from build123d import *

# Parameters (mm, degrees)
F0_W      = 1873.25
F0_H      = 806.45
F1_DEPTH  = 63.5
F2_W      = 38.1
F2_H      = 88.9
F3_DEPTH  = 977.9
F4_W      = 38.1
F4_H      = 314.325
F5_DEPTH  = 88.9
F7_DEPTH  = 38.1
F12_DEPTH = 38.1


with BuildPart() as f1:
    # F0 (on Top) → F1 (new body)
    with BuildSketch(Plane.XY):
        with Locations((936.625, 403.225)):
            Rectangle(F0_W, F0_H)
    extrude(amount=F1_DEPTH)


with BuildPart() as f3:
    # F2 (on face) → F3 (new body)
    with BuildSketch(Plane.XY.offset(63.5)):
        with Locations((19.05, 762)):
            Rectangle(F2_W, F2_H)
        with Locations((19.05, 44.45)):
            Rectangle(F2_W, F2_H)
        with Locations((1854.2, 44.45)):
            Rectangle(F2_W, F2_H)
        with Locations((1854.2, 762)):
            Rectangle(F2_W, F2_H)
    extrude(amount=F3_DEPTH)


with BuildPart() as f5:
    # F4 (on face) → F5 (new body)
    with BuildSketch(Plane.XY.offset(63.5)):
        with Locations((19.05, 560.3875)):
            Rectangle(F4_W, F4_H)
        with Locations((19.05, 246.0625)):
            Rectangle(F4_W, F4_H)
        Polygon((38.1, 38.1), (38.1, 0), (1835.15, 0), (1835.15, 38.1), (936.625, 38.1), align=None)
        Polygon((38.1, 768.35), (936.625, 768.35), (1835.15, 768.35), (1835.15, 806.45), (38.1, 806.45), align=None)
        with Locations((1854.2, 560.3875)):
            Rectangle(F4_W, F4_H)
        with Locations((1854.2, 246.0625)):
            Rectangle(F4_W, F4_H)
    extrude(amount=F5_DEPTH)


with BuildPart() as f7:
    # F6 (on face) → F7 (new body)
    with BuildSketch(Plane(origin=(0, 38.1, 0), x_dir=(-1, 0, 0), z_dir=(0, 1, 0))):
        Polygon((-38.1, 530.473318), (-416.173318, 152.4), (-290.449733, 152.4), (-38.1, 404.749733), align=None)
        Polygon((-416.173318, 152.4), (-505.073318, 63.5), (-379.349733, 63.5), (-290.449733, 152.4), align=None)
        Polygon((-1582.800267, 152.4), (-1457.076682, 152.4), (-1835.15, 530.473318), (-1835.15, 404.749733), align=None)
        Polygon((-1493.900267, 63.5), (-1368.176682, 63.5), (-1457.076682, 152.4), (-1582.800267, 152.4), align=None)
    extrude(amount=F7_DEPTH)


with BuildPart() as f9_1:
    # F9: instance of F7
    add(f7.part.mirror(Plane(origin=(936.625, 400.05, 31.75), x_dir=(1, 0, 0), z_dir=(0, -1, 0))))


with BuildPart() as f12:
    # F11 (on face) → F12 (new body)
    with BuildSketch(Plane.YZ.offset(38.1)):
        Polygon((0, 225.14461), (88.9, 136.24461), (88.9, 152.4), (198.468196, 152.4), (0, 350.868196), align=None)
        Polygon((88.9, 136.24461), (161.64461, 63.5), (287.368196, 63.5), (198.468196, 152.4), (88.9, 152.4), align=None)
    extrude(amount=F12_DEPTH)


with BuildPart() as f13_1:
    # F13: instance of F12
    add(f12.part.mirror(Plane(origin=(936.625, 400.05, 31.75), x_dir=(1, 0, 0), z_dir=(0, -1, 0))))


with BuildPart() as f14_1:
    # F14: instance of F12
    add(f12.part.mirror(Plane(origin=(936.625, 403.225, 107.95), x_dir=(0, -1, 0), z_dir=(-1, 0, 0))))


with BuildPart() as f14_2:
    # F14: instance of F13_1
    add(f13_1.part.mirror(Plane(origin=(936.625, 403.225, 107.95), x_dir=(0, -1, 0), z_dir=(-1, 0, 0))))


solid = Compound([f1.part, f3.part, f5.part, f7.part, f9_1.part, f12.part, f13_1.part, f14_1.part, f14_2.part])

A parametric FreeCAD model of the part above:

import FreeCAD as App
import Part
import Sketcher
Q = App.Units.Quantity

doc = App.newDocument("Part")
body = doc.addObject("PartDesign::Body", "Body")

# Sketch on XY plane
sketch1 = doc.addObject("Sketcher::SketchObject", "Sketch")
body.addObject(sketch1)
sketch1.AttachmentSupport = (doc.XY_Plane, [""])
sketch1.MapMode = "FlatFace"
sketch1.addGeometry(Part.LineSegment(App.Vector(0, 806, 0), App.Vector(0, 0, 0)), False)
sketch1.addGeometry(Part.LineSegment(App.Vector(0, 0, 0), App.Vector(1873, 0, 0)), False)
sketch1.addGeometry(Part.LineSegment(App.Vector(1873, 0, 0), App.Vector(1873, 806, 0)), False)
sketch1.addGeometry(Part.LineSegment(App.Vector(1873, 806, 0), App.Vector(0, 806, 0)), False)
sketch1.addConstraint(Sketcher.Constraint("Coincident", 0, 2, 1, 1))
sketch1.addConstraint(Sketcher.Constraint("Coincident", 1, 2, 2, 1))
sketch1.addConstraint(Sketcher.Constraint("Coincident", 2, 2, 3, 1))
sketch1.addConstraint(Sketcher.Constraint("Coincident", 3, 2, 0, 1))
sketch1.addConstraint(Sketcher.Constraint("Vertical", 0))
sketch1.addConstraint(Sketcher.Constraint("Horizontal", 1))
sketch1.addConstraint(Sketcher.Constraint("Vertical", 2))
sketch1.addConstraint(Sketcher.Constraint("Horizontal", 3))
sketch1.addConstraint(Sketcher.Constraint("Coincident", 0, 2, -1, 1))
sketch1.addConstraint(Sketcher.Constraint("DistanceX", 1, 1, 1, 2, Q("73.75 in")))
sketch1.addConstraint(Sketcher.Constraint("DistanceY", 0, 2, 0, 1, Q("31.75 in")))
pad1 = doc.addObject("PartDesign::Pad", "Pad")
body.addObject(pad1)
pad1.Profile = sketch1
pad1.Length = Q("2.5 in")
body2 = doc.addObject("PartDesign::Body", "Body001")
body2.AllowCompound = True

# Sketch on XY plane
sketch2 = doc.addObject("Sketcher::SketchObject", "Sketch001")
body2.addObject(sketch2)
sketch2.AttachmentSupport = (doc.getObject("XY_Plane001"), [""])
sketch2.MapMode = "FlatFace"
sketch2.AttachmentOffset = App.Placement(App.Vector(0, 0, 2.5 * 25.4), App.Rotation())
sketch2.addGeometry(Part.LineSegment(App.Vector(0, 806, 0), App.Vector(0, 718, 0)), False)
sketch2.addGeometry(Part.LineSegment(App.Vector(0, 718, 0), App.Vector(38, 718, 0)), False)
sketch2.addGeometry(Part.LineSegment(App.Vector(38, 718, 0), App.Vector(38, 806, 0)), False)
sketch2.addGeometry(Part.LineSegment(App.Vector(38, 806, 0), App.Vector(0, 806, 0)), False)
sketch2.addGeometry(Part.LineSegment(App.Vector(0, 89, 0), App.Vector(0, 0, 0)), False)
sketch2.addGeometry(Part.LineSegment(App.Vector(0, 0, 0), App.Vector(38, 0, 0)), False)
sketch2.addGeometry(Part.LineSegment(App.Vector(38, 0, 0), App.Vector(38, 89, 0)), False)
sketch2.addGeometry(Part.LineSegment(App.Vector(38, 89, 0), App.Vector(0, 89, 0)), False)
sketch2.addGeometry(Part.LineSegment(App.Vector(1835, 89, 0), App.Vector(1835, 0, 0)), False)
sketch2.addGeometry(Part.LineSegment(App.Vector(1835, 0, 0), App.Vector(1873, 0, 0)), False)
sketch2.addGeometry(Part.LineSegment(App.Vector(1873, 0, 0), App.Vector(1873, 89, 0)), False)
sketch2.addGeometry(Part.LineSegment(App.Vector(1873, 89, 0), App.Vector(1835, 89, 0)), False)
sketch2.addGeometry(Part.LineSegment(App.Vector(1835, 806, 0), App.Vector(1835, 718, 0)), False)
sketch2.addGeometry(Part.LineSegment(App.Vector(1835, 718, 0), App.Vector(1873, 718, 0)), False)
sketch2.addGeometry(Part.LineSegment(App.Vector(1873, 718, 0), App.Vector(1873, 806, 0)), False)
sketch2.addGeometry(Part.LineSegment(App.Vector(1873, 806, 0), App.Vector(1835, 806, 0)), False)
sketch2.addConstraint(Sketcher.Constraint("Coincident", 0, 2, 1, 1))
sketch2.addConstraint(Sketcher.Constraint("Coincident", 1, 2, 2, 1))
sketch2.addConstraint(Sketcher.Constraint("Coincident", 2, 2, 3, 1))
sketch2.addConstraint(Sketcher.Constraint("Coincident", 3, 2, 0, 1))
sketch2.addConstraint(Sketcher.Constraint("Coincident", 4, 2, 5, 1))
sketch2.addConstraint(Sketcher.Constraint("Coincident", 5, 2, 6, 1))
sketch2.addConstraint(Sketcher.Constraint("Coincident", 6, 2, 7, 1))
sketch2.addConstraint(Sketcher.Constraint("Coincident", 7, 2, 4, 1))
sketch2.addConstraint(Sketcher.Constraint("Coincident", 8, 2, 9, 1))
sketch2.addConstraint(Sketcher.Constraint("Coincident", 9, 2, 10, 1))
sketch2.addConstraint(Sketcher.Constraint("Coincident", 10, 2, 11, 1))
sketch2.addConstraint(Sketcher.Constraint("Coincident", 11, 2, 8, 1))
sketch2.addConstraint(Sketcher.Constraint("Coincident", 12, 2, 13, 1))
sketch2.addConstraint(Sketcher.Constraint("Coincident", 13, 2, 14, 1))
sketch2.addConstraint(Sketcher.Constraint("Coincident", 14, 2, 15, 1))
sketch2.addConstraint(Sketcher.Constraint("Coincident", 15, 2, 12, 1))
sketch2.addConstraint(Sketcher.Constraint("Vertical", 0))
sketch2.addConstraint(Sketcher.Constraint("Horizontal", 1))
sketch2.addConstraint(Sketcher.Constraint("Vertical", 2))
sketch2.addConstraint(Sketcher.Constraint("Horizontal", 3))
sketch2.addConstraint(Sketcher.Constraint("Vertical", 4))
sketch2.addConstraint(Sketcher.Constraint("Horizontal", 5))
sketch2.addConstraint(Sketcher.Constraint("Vertical", 6))
sketch2.addConstraint(Sketcher.Constraint("Horizontal", 7))
sketch2.addConstraint(Sketcher.Constraint("Vertical", 8))
sketch2.addConstraint(Sketcher.Constraint("Horizontal", 9))
sketch2.addConstraint(Sketcher.Constraint("Vertical", 10))
sketch2.addConstraint(Sketcher.Constraint("Horizontal", 11))
sketch2.addConstraint(Sketcher.Constraint("Vertical", 12))
sketch2.addConstraint(Sketcher.Constraint("Horizontal", 13))
sketch2.addConstraint(Sketcher.Constraint("Vertical", 14))
sketch2.addConstraint(Sketcher.Constraint("Horizontal", 15))
sketch2.addConstraint(Sketcher.Constraint("Coincident", 4, 2, -1, 1))
sketch2.addConstraint(Sketcher.Constraint("PointOnObject", 0, 2, -2))
sketch2.addConstraint(Sketcher.Constraint("PointOnObject", 8, 2, -1))
sketch2.addConstraint(Sketcher.Constraint("Horizontal", 7, 2, 10, 2))
sketch2.addConstraint(Sketcher.Constraint("Horizontal", 1, 2, 12, 2))
sketch2.addConstraint(Sketcher.Constraint("Horizontal", 3, 2, 14, 2))
sketch2.addConstraint(Sketcher.Constraint("Vertical", 2, 2, 5, 2))
sketch2.addConstraint(Sketcher.Constraint("Vertical", 11, 2, 12, 2))
sketch2.addConstraint(Sketcher.Constraint("Vertical", 10, 2, 13, 2))
sketch2.addConstraint(Sketcher.Constraint("Equal", 7, 9))
sketch2.addConstraint(Sketcher.Constraint("Equal", 2, 4))
sketch2.addConstraint(Sketcher.Constraint("DistanceX", 1, 1, 1, 2, Q("1.5 in")))
sketch2.addConstraint(Sketcher.Constraint("DistanceY", 0, 2, 0, 1, Q("3.5 in")))
sketch2.addConstraint(Sketcher.Constraint("DistanceY", -1, 1, 0, 2, Q("28.25 in")))
sketch2.addConstraint(Sketcher.Constraint("DistanceX", -1, 1, 8, 2, Q("72.25 in")))
pad2 = doc.addObject("PartDesign::Pad", "Pad001")
body2.addObject(pad2)
pad2.Profile = sketch2
pad2.Length = Q("38.5 in")
body3 = doc.addObject("PartDesign::Body", "Body002")
body3.AllowCompound = True

# Sketch on XY plane
sketch3 = doc.addObject("Sketcher::SketchObject", "Sketch002")
body3.addObject(sketch3)
sketch3.AttachmentSupport = (doc.getObject("XY_Plane002"), [""])
sketch3.MapMode = "FlatFace"
sketch3.AttachmentOffset = App.Placement(App.Vector(0, 0, 2.5 * 25.4), App.Rotation())
sketch3.addGeometry(Part.LineSegment(App.Vector(0, 718, 0), App.Vector(0, 89, 0)), False)
sketch3.addGeometry(Part.LineSegment(App.Vector(0, 89, 0), App.Vector(38, 89, 0)), False)
sketch3.addGeometry(Part.LineSegment(App.Vector(38, 89, 0), App.Vector(38, 718, 0)), False)
sketch3.addGeometry(Part.LineSegment(App.Vector(38, 718, 0), App.Vector(0, 718, 0)), False)
sketch3.addGeometry(Part.LineSegment(App.Vector(38, 38, 0), App.Vector(38, 0, 0)), False)
sketch3.addGeometry(Part.LineSegment(App.Vector(38, 0, 0), App.Vector(1835, 0, 0)), False)
sketch3.addGeometry(Part.LineSegment(App.Vector(1835, 0, 0), App.Vector(1835, 38, 0)), False)
sketch3.addGeometry(Part.LineSegment(App.Vector(1835, 38, 0), App.Vector(38, 38, 0)), False)
sketch3.addGeometry(Part.LineSegment(App.Vector(38, 768, 0), App.Vector(1835, 768, 0)), False)
sketch3.addGeometry(Part.LineSegment(App.Vector(1835, 768, 0), App.Vector(1835, 806, 0)), False)
sketch3.addGeometry(Part.LineSegment(App.Vector(1835, 806, 0), App.Vector(38, 806, 0)), False)
sketch3.addGeometry(Part.LineSegment(App.Vector(38, 806, 0), App.Vector(38, 768, 0)), False)
sketch3.addGeometry(Part.LineSegment(App.Vector(1835, 718, 0), App.Vector(1835, 89, 0)), False)
sketch3.addGeometry(Part.LineSegment(App.Vector(1835, 89, 0), App.Vector(1873, 89, 0)), False)
sketch3.addGeometry(Part.LineSegment(App.Vector(1873, 89, 0), App.Vector(1873, 718, 0)), False)
sketch3.addGeometry(Part.LineSegment(App.Vector(1873, 718, 0), App.Vector(1835, 718, 0)), False)
sketch3.addConstraint(Sketcher.Constraint("Coincident", 0, 2, 1, 1))
sketch3.addConstraint(Sketcher.Constraint("Coincident", 1, 2, 2, 1))
sketch3.addConstraint(Sketcher.Constraint("Coincident", 2, 2, 3, 1))
sketch3.addConstraint(Sketcher.Constraint("Coincident", 3, 2, 0, 1))
sketch3.addConstraint(Sketcher.Constraint("Coincident", 4, 2, 5, 1))
sketch3.addConstraint(Sketcher.Constraint("Coincident", 5, 2, 6, 1))
sketch3.addConstraint(Sketcher.Constraint("Coincident", 6, 2, 7, 1))
sketch3.addConstraint(Sketcher.Constraint("Coincident", 7, 2, 4, 1))
sketch3.addConstraint(Sketcher.Constraint("Coincident", 8, 2, 9, 1))
sketch3.addConstraint(Sketcher.Constraint("Coincident", 9, 2, 10, 1))
sketch3.addConstraint(Sketcher.Constraint("Coincident", 10, 2, 11, 1))
sketch3.addConstraint(Sketcher.Constraint("Coincident", 11, 2, 8, 1))
sketch3.addConstraint(Sketcher.Constraint("Coincident", 12, 2, 13, 1))
sketch3.addConstraint(Sketcher.Constraint("Coincident", 13, 2, 14, 1))
sketch3.addConstraint(Sketcher.Constraint("Coincident", 14, 2, 15, 1))
sketch3.addConstraint(Sketcher.Constraint("Coincident", 15, 2, 12, 1))
sketch3.addConstraint(Sketcher.Constraint("Vertical", 0))
sketch3.addConstraint(Sketcher.Constraint("Horizontal", 1))
sketch3.addConstraint(Sketcher.Constraint("Vertical", 2))
sketch3.addConstraint(Sketcher.Constraint("Horizontal", 3))
sketch3.addConstraint(Sketcher.Constraint("Vertical", 4))
sketch3.addConstraint(Sketcher.Constraint("Horizontal", 5))
sketch3.addConstraint(Sketcher.Constraint("Vertical", 6))
sketch3.addConstraint(Sketcher.Constraint("Horizontal", 7))
sketch3.addConstraint(Sketcher.Constraint("Horizontal", 8))
sketch3.addConstraint(Sketcher.Constraint("Vertical", 9))
sketch3.addConstraint(Sketcher.Constraint("Horizontal", 10))
sketch3.addConstraint(Sketcher.Constraint("Vertical", 11))
sketch3.addConstraint(Sketcher.Constraint("Vertical", 12))
sketch3.addConstraint(Sketcher.Constraint("Horizontal", 13))
sketch3.addConstraint(Sketcher.Constraint("Vertical", 14))
sketch3.addConstraint(Sketcher.Constraint("Horizontal", 15))
sketch3.addConstraint(Sketcher.Constraint("PointOnObject", 0, 2, -2))
sketch3.addConstraint(Sketcher.Constraint("PointOnObject", 4, 2, -1))
sketch3.addConstraint(Sketcher.Constraint("Horizontal", 1, 2, 12, 2))
sketch3.addConstraint(Sketcher.Constraint("Horizontal", 3, 2, 14, 2))
sketch3.addConstraint(Sketcher.Constraint("Vertical", 2, 2, 4, 2))
sketch3.addConstraint(Sketcher.Constraint("Vertical", 6, 2, 8, 2))
sketch3.addConstraint(Sketcher.Constraint("Vertical", 7, 2, 10, 2))
sketch3.addConstraint(Sketcher.Constraint("Vertical", 9, 2, 12, 2))
sketch3.addConstraint(Sketcher.Constraint("Equal", 3, 13))
sketch3.addConstraint(Sketcher.Constraint("Equal", 15, 4))
sketch3.addConstraint(Sketcher.Constraint("Equal", 6, 9))
sketch3.addConstraint(Sketcher.Constraint("DistanceX", 1, 1, 1, 2, Q("1.5 in")))
sketch3.addConstraint(Sketcher.Constraint("DistanceY", 6, 2, 1, 2, Q("2 in")))
sketch3.addConstraint(Sketcher.Constraint("DistanceY", 2, 2, 8, 2, Q("2 in")))
sketch3.addConstraint(Sketcher.Constraint("DistanceX", 5, 1, 5, 2, Q("70.75 in")))
sketch3.addConstraint(Sketcher.Constraint("DistanceY", 0, 2, 0, 1, Q("24.75 in")))
pad3 = doc.addObject("PartDesign::Pad", "Pad002")
body3.addObject(pad3)
pad3.Profile = sketch3
pad3.Length = Q("3.5 in")
body4 = doc.addObject("PartDesign::Body", "Body003")
body4.AllowCompound = True

# Sketch on XZ plane
sketch4 = doc.addObject("Sketcher::SketchObject", "Sketch003")
body4.addObject(sketch4)
sketch4.AttachmentSupport = (doc.getObject("XZ_Plane003"), [""])
sketch4.MapMode = "FlatFace"
sketch4.AttachmentOffset = App.Placement(App.Vector(0, 0, -1.5 * 25.4), App.Rotation())
sketch4.addGeometry(Part.LineSegment(App.Vector(38, 530, 0), App.Vector(505, 64, 0)), False)
sketch4.addGeometry(Part.LineSegment(App.Vector(505, 64, 0), App.Vector(379, 64, 0)), False)
sketch4.addGeometry(Part.LineSegment(App.Vector(379, 64, 0), App.Vector(38, 405, 0)), False)
sketch4.addGeometry(Part.LineSegment(App.Vector(38, 405, 0), App.Vector(38, 530, 0)), False)
sketch4.addGeometry(Part.LineSegment(App.Vector(1835, 530, 0), App.Vector(1835, 405, 0)), False)
sketch4.addGeometry(Part.LineSegment(App.Vector(1835, 405, 0), App.Vector(1494, 64, 0)), False)
sketch4.addGeometry(Part.LineSegment(App.Vector(1494, 64, 0), App.Vector(1368, 64, 0)), False)
sketch4.addGeometry(Part.LineSegment(App.Vector(1368, 64, 0), App.Vector(1835, 530, 0)), False)
sketch4.addConstraint(Sketcher.Constraint("Coincident", 0, 2, 1, 1))
sketch4.addConstraint(Sketcher.Constraint("Coincident", 1, 2, 2, 1))
sketch4.addConstraint(Sketcher.Constraint("Coincident", 2, 2, 3, 1))
sketch4.addConstraint(Sketcher.Constraint("Coincident", 3, 2, 0, 1))
sketch4.addConstraint(Sketcher.Constraint("Coincident", 4, 2, 5, 1))
sketch4.addConstraint(Sketcher.Constraint("Coincident", 5, 2, 6, 1))
sketch4.addConstraint(Sketcher.Constraint("Coincident", 6, 2, 7, 1))
sketch4.addConstraint(Sketcher.Constraint("Coincident", 7, 2, 4, 1))
sketch4.addConstraint(Sketcher.Constraint("Horizontal", 1))
sketch4.addConstraint(Sketcher.Constraint("Vertical", 3))
sketch4.addConstraint(Sketcher.Constraint("Vertical", 4))
sketch4.addConstraint(Sketcher.Constraint("Horizontal", 6))
sketch4.addConstraint(Sketcher.Constraint("Parallel", 0, 2))
sketch4.addConstraint(Sketcher.Constraint("Perpendicular", 2, 5))
sketch4.addConstraint(Sketcher.Constraint("Parallel", 5, 7))
sketch4.addConstraint(Sketcher.Constraint("Horizontal", 2, 2, 4, 2))
sketch4.addConstraint(Sketcher.Constraint("Horizontal", 1, 2, 5, 2))
sketch4.addConstraint(Sketcher.Constraint("Horizontal", 3, 2, 7, 2))
sketch4.addConstraint(Sketcher.Constraint("Equal", 1, 6))
sketch4.addConstraint(Sketcher.Constraint("Distance", 0, Q("26 in")))
sketch4.addConstraint(Sketcher.Constraint("Distance", 2, Q("19 in")))
sketch4.addConstraint(Sketcher.Constraint("DistanceY", -1, 1, 0, 2, Q("2.5 in")))
sketch4.addConstraint(Sketcher.Constraint("DistanceX", -1, 1, 2, 2, Q("1.5 in")))
sketch4.addConstraint(Sketcher.Constraint("DistanceX", -1, 1, 4, 2, Q("72.25 in")))
pad4 = doc.addObject("PartDesign::Pad", "Pad003")
body4.addObject(pad4)
pad4.Profile = sketch4
pad4.Length = Q("1.5 in")
pad4.Reversed = True
body5 = doc.addObject("PartDesign::Body", "Body004")
body5.AllowCompound = True
doc.recompute()

mirroring = doc.addObject("Part::Mirroring", "Mirroring")
mirroring.Source = body4
mirroring.Base = App.Vector(936.625, 400.05, 31.75)
mirroring.Normal = App.Vector(0, -1, 0)
body5.BaseFeature = mirroring
doc.recompute()
body6 = doc.addObject("PartDesign::Body", "Body005")

# Sketch on YZ plane
sketch5 = doc.addObject("Sketcher::SketchObject", "Sketch004")
body6.addObject(sketch5)
sketch5.AttachmentSupport = (doc.getObject("YZ_Plane005"), [""])
sketch5.MapMode = "FlatFace"
sketch5.AttachmentOffset = App.Placement(App.Vector(0, 0, 1.5 * 25.4), App.Rotation())
sketch5.addGeometry(Part.LineSegment(App.Vector(0, 225, 0), App.Vector(162, 64, 0)), False)
sketch5.addGeometry(Part.LineSegment(App.Vector(162, 64, 0), App.Vector(287, 64, 0)), False)
sketch5.addGeometry(Part.LineSegment(App.Vector(287, 64, 0), App.Vector(0, 351, 0)), False)
sketch5.addGeometry(Part.LineSegment(App.Vector(0, 351, 0), App.Vector(0, 225, 0)), False)
sketch5.addConstraint(Sketcher.Constraint("Coincident", 0, 2, 1, 1))
sketch5.addConstraint(Sketcher.Constraint("Coincident", 1, 2, 2, 1))
sketch5.addConstraint(Sketcher.Constraint("Coincident", 2, 2, 3, 1))
sketch5.addConstraint(Sketcher.Constraint("Coincident", 3, 2, 0, 1))
sketch5.addConstraint(Sketcher.Constraint("Horizontal", 1))
sketch5.addConstraint(Sketcher.Constraint("Vertical", 3))
sketch5.addConstraint(Sketcher.Constraint("PointOnObject", 2, 2, -2))
sketch5.addConstraint(Sketcher.Constraint("Parallel", 0, 2))
sketch5.addConstraint(Sketcher.Constraint("Equal", 1, 3))
sketch5.addConstraint(Sketcher.Constraint("Distance", 0, Q("9 in")))
sketch5.addConstraint(Sketcher.Constraint("Distance", 2, Q("16 in")))
sketch5.addConstraint(Sketcher.Constraint("DistanceY", -1, 1, 0, 2, Q("2.5 in")))
pad5 = doc.addObject("PartDesign::Pad", "Pad004")
body6.addObject(pad5)
pad5.Profile = sketch5
pad5.Length = Q("1.5 in")
body7 = doc.addObject("PartDesign::Body", "Body006")
doc.recompute()

mirroring2 = doc.addObject("Part::Mirroring", "Mirroring001")
mirroring2.Source = body6
mirroring2.Base = App.Vector(936.625, 400.05, 31.75)
mirroring2.Normal = App.Vector(0, -1, 0)
body7.BaseFeature = mirroring2
doc.recompute()
body8 = doc.addObject("PartDesign::Body", "Body007")
doc.recompute()

mirroring3 = doc.addObject("Part::Mirroring", "Mirroring002")
mirroring3.Source = body6
mirroring3.Base = App.Vector(936.625, 403.225, 107.95)
mirroring3.Normal = App.Vector(-1, 0, 0)
body8.BaseFeature = mirroring3
doc.recompute()
body9 = doc.addObject("PartDesign::Body", "Body008")
doc.recompute()

mirroring4 = doc.addObject("Part::Mirroring", "Mirroring003")
mirroring4.Source = body7
mirroring4.Base = App.Vector(936.625, 403.225, 107.95)
mirroring4.Normal = App.Vector(-1, 0, 0)
body9.BaseFeature = mirroring4
doc.recompute()
mirroring.Visibility = False
mirroring2.Visibility = False
mirroring3.Visibility = False
mirroring4.Visibility = False

doc.recompute()
